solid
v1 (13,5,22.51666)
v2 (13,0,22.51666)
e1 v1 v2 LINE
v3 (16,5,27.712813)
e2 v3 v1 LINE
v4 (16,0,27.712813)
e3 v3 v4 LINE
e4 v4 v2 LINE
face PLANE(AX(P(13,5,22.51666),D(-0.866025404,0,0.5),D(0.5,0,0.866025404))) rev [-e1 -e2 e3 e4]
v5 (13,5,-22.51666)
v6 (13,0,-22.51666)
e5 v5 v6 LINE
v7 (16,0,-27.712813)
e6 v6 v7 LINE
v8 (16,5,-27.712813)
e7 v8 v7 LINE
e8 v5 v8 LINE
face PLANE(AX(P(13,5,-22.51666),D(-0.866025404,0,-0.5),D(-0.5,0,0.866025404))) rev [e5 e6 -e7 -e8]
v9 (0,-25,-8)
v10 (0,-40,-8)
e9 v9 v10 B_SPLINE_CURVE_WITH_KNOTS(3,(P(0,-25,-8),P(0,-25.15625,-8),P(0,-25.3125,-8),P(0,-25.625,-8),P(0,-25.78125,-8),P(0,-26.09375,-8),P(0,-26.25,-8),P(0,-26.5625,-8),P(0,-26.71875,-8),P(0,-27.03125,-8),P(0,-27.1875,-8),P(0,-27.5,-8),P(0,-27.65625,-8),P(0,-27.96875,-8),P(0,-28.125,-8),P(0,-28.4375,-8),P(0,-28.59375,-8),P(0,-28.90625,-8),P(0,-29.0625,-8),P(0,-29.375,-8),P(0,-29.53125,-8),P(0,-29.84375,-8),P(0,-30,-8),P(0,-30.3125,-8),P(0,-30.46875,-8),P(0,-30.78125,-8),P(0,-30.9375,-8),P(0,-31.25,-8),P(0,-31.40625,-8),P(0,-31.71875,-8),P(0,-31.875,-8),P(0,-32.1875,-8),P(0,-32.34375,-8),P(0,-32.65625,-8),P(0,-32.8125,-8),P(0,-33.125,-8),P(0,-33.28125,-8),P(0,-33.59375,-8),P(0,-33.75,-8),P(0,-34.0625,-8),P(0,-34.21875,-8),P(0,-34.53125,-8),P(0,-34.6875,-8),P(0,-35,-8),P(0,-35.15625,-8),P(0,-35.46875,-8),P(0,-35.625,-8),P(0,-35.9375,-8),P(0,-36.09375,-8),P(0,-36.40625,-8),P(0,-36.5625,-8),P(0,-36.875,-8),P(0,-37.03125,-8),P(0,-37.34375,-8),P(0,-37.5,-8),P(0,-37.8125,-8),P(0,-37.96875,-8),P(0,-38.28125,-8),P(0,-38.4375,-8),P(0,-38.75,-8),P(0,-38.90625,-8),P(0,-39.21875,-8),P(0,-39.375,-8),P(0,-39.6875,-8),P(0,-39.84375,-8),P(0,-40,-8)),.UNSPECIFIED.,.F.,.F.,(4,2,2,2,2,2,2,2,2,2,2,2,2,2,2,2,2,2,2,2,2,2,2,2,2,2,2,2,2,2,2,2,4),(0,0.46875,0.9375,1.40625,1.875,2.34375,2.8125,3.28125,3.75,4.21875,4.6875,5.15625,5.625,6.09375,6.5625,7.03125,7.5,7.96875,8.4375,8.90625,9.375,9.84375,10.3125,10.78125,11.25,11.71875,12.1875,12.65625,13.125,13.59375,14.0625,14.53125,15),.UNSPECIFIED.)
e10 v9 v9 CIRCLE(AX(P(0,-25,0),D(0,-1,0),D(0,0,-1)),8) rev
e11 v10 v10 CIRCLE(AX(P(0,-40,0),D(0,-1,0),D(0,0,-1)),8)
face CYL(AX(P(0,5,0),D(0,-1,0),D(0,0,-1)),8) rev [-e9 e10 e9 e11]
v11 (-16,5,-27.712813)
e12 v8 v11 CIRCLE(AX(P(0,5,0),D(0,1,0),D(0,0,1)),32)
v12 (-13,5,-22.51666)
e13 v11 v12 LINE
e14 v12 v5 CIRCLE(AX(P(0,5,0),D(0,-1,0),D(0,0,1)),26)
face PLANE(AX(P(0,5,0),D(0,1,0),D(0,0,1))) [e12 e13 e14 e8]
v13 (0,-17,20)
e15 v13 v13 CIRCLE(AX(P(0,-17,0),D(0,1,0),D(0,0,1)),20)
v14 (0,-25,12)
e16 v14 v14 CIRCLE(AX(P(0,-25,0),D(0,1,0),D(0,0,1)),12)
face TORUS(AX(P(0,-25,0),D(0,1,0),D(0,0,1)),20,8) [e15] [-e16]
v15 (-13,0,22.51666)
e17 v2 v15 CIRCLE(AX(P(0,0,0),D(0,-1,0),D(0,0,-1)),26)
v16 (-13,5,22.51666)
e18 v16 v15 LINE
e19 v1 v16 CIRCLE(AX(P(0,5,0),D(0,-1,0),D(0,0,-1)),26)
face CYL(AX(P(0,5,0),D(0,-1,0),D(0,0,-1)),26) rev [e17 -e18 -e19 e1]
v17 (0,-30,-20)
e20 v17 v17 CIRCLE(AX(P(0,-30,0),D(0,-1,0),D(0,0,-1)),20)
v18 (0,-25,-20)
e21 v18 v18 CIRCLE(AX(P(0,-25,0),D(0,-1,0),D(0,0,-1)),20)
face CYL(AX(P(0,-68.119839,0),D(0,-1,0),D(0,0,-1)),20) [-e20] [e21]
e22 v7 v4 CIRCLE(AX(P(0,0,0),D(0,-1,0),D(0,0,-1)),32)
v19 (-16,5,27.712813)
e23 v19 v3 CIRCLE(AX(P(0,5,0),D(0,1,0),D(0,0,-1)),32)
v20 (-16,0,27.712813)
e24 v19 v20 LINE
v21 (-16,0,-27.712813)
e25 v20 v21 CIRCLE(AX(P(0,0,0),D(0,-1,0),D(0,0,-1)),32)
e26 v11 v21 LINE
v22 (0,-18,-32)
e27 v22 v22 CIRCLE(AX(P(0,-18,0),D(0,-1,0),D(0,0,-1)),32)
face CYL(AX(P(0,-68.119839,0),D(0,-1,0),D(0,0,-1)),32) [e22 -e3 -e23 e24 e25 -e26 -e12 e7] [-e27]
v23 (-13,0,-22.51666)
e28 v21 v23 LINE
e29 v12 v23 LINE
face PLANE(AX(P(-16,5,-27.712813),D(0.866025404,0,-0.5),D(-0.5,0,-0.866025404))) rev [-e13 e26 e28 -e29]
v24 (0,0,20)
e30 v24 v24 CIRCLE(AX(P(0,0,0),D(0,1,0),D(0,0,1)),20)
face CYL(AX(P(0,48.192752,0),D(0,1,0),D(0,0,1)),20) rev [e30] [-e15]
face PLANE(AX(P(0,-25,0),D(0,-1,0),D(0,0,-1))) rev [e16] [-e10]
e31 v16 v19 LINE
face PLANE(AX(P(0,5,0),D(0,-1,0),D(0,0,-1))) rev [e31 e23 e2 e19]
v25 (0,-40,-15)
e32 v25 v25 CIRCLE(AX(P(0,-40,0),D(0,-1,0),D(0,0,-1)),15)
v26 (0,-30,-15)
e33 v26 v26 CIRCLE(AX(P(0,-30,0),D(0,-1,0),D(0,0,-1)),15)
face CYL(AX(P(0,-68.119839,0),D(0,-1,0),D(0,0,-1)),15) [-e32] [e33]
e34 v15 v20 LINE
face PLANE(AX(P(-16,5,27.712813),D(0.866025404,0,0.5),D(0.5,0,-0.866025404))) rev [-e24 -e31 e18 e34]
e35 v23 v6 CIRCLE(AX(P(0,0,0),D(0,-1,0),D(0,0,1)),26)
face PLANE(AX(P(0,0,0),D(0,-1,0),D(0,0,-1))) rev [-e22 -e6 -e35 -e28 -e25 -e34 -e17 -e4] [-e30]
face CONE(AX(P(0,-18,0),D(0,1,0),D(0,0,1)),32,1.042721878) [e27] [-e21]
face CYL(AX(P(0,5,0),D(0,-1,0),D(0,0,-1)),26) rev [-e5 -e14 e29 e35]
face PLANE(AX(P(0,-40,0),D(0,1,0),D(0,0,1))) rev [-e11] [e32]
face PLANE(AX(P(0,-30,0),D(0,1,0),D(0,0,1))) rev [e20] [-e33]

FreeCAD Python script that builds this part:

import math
import FreeCAD as App
import Part
import Sketcher

V = App.Vector
Q = App.Units.Quantity

doc = App.newDocument("Part")
params = doc.addObject("Spreadsheet::Sheet", "Params")
for row, (alias, value) in enumerate([
    ("sketch1_width", "40 mm"),
    ("sketch1_width2", "18 mm"),
    ("sketch1_width3", "5 mm"),
    ("sketch1_width4", "10 mm"),
    ("sketch1_height", "15 mm"),
    ("revolution_angle", "360 deg"),
    ("sketch2_radius", "32 mm"),
    ("sketch2_radius2", "26 mm"),
    ("pad1_length", "5 mm"),
    ("sketch3_diameter", "16 mm"),
    ("sketch4_radius", "8 mm"),
    ("sketch4_width", "17 mm"),
    ("sketch4_width2", "8 mm"),
    ("sketch4_height", "20 mm"),
    ("groove_angle", "360 deg"),
], start=1):
    params.set(f"A{row}", alias)
    params.set(f"B{row}", "=" + value)
    params.setAlias(f"B{row}", alias)

body = doc.addObject("PartDesign::Body", "Body")

sketch1 = body.newObject("Sketcher::SketchObject", "Sketch")
sketch1.AttachmentSupport = (doc.getObject("YZ_Plane"), [""])
sketch1.MapMode = "FlatFace"
sketch1.addGeometry(Part.LineSegment(V(-40, 15, 0), V(-40, 0, 0)), False)
sketch1.addGeometry(Part.LineSegment(V(-40, 0, 0), V(0, 0, 0)), False)
sketch1.addGeometry(Part.LineSegment(V(0, 0, 0), V(0, 32, 0)), False)
sketch1.addGeometry(Part.LineSegment(V(0, 32, 0), V(-18, 32, 0)), False)
sketch1.addGeometry(Part.LineSegment(V(-18, 32, 0), V(-25, 20, 0)), False)
sketch1.addGeometry(Part.LineSegment(V(-25, 20, 0), V(-30, 20, 0)), False)
sketch1.addGeometry(Part.LineSegment(V(-30, 20, 0), V(-30, 15, 0)), False)
sketch1.addGeometry(Part.LineSegment(V(-30, 15, 0), V(-40, 15, 0)), False)
sketch1.addConstraint(Sketcher.Constraint("Coincident", 0, 2, 1, 1))
sketch1.addConstraint(Sketcher.Constraint("Coincident", 1, 2, 2, 1))
sketch1.addConstraint(Sketcher.Constraint("Coincident", 2, 2, 3, 1))
sketch1.addConstraint(Sketcher.Constraint("Coincident", 3, 2, 4, 1))
sketch1.addConstraint(Sketcher.Constraint("Coincident", 4, 2, 5, 1))
sketch1.addConstraint(Sketcher.Constraint("Coincident", 5, 2, 6, 1))
sketch1.addConstraint(Sketcher.Constraint("Coincident", 6, 2, 7, 1))
sketch1.addConstraint(Sketcher.Constraint("Coincident", 7, 2, 0, 1))
sketch1.addConstraint(Sketcher.Constraint("Vertical", 0))
sketch1.addConstraint(Sketcher.Constraint("Horizontal", 1))
sketch1.addConstraint(Sketcher.Constraint("Vertical", 2))
sketch1.addConstraint(Sketcher.Constraint("Horizontal", 3))
sketch1.addConstraint(Sketcher.Constraint("Horizontal", 5))
sketch1.addConstraint(Sketcher.Constraint("Vertical", 6))
sketch1.addConstraint(Sketcher.Constraint("Horizontal", 7))
sketch1.addConstraint(Sketcher.Constraint("Coincident", 1, 2, -1, 1))
sketch1.addConstraint(Sketcher.Constraint("Equal", 5, 6))
sketch1.addConstraint(Sketcher.Constraint("DistanceX", 1, 1, 1, 2, 40.0))
sketch1.addConstraint(Sketcher.Constraint("DistanceX", 3, 2, 3, 1, 18.0))
sketch1.addConstraint(Sketcher.Constraint("DistanceX", 5, 2, 5, 1, 5.0))
sketch1.addConstraint(Sketcher.Constraint("DistanceX", 7, 2, 7, 1, 10.0))
sketch1.addConstraint(Sketcher.Constraint("DistanceY", 0, 2, 0, 1, 15.0))
sketch1.addConstraint(Sketcher.Constraint("DistanceY", 2, 1, 2, 2, 32.0))
sketch1.setExpression("Constraints[17]", "Params.sketch1_width")
sketch1.setExpression("Constraints[18]", "Params.sketch1_width2")
sketch1.setExpression("Constraints[19]", "Params.sketch1_width3")
sketch1.setExpression("Constraints[20]", "Params.sketch1_width4")
sketch1.setExpression("Constraints[21]", "Params.sketch1_height")
revolution = body.newObject("PartDesign::Revolution", "Revolution")
revolution.Profile = sketch1
revolution.ReferenceAxis = (sketch1, ["H_Axis"])
revolution.setExpression("Angle", "Params.revolution_angle")

sketch2 = body.newObject("Sketcher::SketchObject", "Sketch001")
sketch2.AttachmentSupport = (doc.getObject("XZ_Plane"), [""])
sketch2.MapMode = "FlatFace"
sketch2.addGeometry(Part.LineSegment(V(13, -23, 0), V(16, -28, 0)), False)
sketch2.addGeometry(Part.ArcOfCircle(Part.Circle(V(0, 0, 0), V(0, 0, 1), 32), math.radians(-120), math.radians(-60)), False)
sketch2.addGeometry(Part.LineSegment(V(-16, -28, 0), V(-13, -23, 0)), False)
sketch2.addGeometry(Part.ArcOfCircle(Part.Circle(V(0, 0, 0), V(0, 0, 1), 26), math.radians(-120), math.radians(-60)), False)
sketch2.addGeometry(Part.LineSegment(V(16, 28, 0), V(13, 23, 0)), False)
sketch2.addGeometry(Part.ArcOfCircle(Part.Circle(V(0, 0, 0), V(0, 0, 1), 26), math.radians(60), math.radians(120)), False)
sketch2.addGeometry(Part.LineSegment(V(-13, 23, 0), V(-16, 28, 0)), False)
sketch2.addGeometry(Part.ArcOfCircle(Part.Circle(V(0, 0, 0), V(0, 0, 1), 32), math.radians(60), math.radians(120)), False)
sketch2.addConstraint(Sketcher.Constraint("Coincident", 0, 2, 1, 2))
sketch2.addConstraint(Sketcher.Constraint("Coincident", 1, 1, 2, 1))
sketch2.addConstraint(Sketcher.Constraint("Coincident", 2, 2, 3, 1))
sketch2.addConstraint(Sketcher.Constraint("Coincident", 3, 2, 0, 1))
sketch2.addConstraint(Sketcher.Constraint("Coincident", 4, 2, 5, 1))
sketch2.addConstraint(Sketcher.Constraint("Coincident", 5, 2, 6, 1))
sketch2.addConstraint(Sketcher.Constraint("Coincident", 6, 2, 7, 2))
sketch2.addConstraint(Sketcher.Constraint("Coincident", 7, 1, 4, 1))
sketch2.addConstraint(Sketcher.Constraint("Coincident", 1, 3, -1, 1))
sketch2.addConstraint(Sketcher.Constraint("Coincident", 3, 3, -1, 1))
sketch2.addConstraint(Sketcher.Constraint("Coincident", 5, 3, -1, 1))
sketch2.addConstraint(Sketcher.Constraint("Coincident", 7, 3, -1, 1))
sketch2.addConstraint(Sketcher.Constraint("Equal", 3, 5))
sketch2.addConstraint(Sketcher.Constraint("Equal", 1, 7))
sketch2.addConstraint(Sketcher.Constraint("Parallel", 2, 4))
sketch2.addConstraint(Sketcher.Constraint("Parallel", 0, 6))
sketch2.addConstraint(Sketcher.Constraint("Horizontal", 0, 2, 1, 1))
sketch2.addConstraint(Sketcher.Constraint("Horizontal", 2, 2, 3, 2))
sketch2.addConstraint(Sketcher.Constraint("Horizontal", 4, 2, 5, 2))
sketch2.addConstraint(Sketcher.Constraint("Vertical", 3, 2, 4, 2))
sketch2.addConstraint(Sketcher.Constraint("Radius", 1, 32.0))
sketch2.addConstraint(Sketcher.Constraint("Radius", 3, 26.0))
sketch2.addConstraint(Sketcher.Constraint("Angle", 0, Q("-60 deg")))
sketch2.addConstraint(Sketcher.Constraint("DistanceX", -1, 1, 0, 2, 16.0))
sketch2.setExpression("Constraints[20]", "Params.sketch2_radius")
sketch2.setExpression("Constraints[21]", "Params.sketch2_radius2")
pad1 = body.newObject("PartDesign::Pad", "Pad")
pad1.Profile = sketch2
pad1.setExpression("Length", "Params.pad1_length")
pad1.Reversed = True

sketch3 = body.newObject("Sketcher::SketchObject", "Sketch002")
sketch3.AttachmentSupport = (doc.getObject("XZ_Plane"), [""])
sketch3.MapMode = "FlatFace"
sketch3.AttachmentOffset = App.Placement(V(0, 0, 40), App.Rotation())
sketch3.addGeometry(Part.Circle(V(0, 0, 0), V(0, 0, 1), 8), False)
sketch3.addConstraint(Sketcher.Constraint("Coincident", 0, 3, -1, 1))
sketch3.addConstraint(Sketcher.Constraint("Diameter", 0, 16.0))
sketch3.setExpression("Constraints[1]", "Params.sketch3_diameter")
pocket1 = body.newObject("PartDesign::Pocket", "Pocket")
pocket1.Profile = sketch3
pocket1.Type = "ThroughAll"

sketch4 = body.newObject("Sketcher::SketchObject", "Sketch003")
sketch4.AttachmentSupport = (doc.getObject("YZ_Plane"), [""])
sketch4.MapMode = "FlatFace"
sketch4.addGeometry(Part.LineSegment(V(-17, 20, 0), V(-17, 0, 0)), False)
sketch4.addGeometry(Part.LineSegment(V(-17, 0, 0), V(0, 0, 0)), False)
sketch4.addGeometry(Part.LineSegment(V(0, 0, 0), V(0, 20, 0)), False)
sketch4.addGeometry(Part.LineSegment(V(0, 20, 0), V(-17, 20, 0)), False)
sketch4.addGeometry(Part.LineSegment(V(-17, 0, 0), V(-17, 20, 0)), False)
sketch4.addGeometry(Part.ArcOfCircle(Part.Circle(V(-25, 20, 0), V(0, 0, 1), 8), math.radians(-90), math.radians(0)), False)
sketch4.addGeometry(Part.LineSegment(V(-25, 12, 0), V(-25, 0, 0)), False)
sketch4.addGeometry(Part.LineSegment(V(-25, 0, 0), V(-17, 0, 0)), False)
sketch4.addConstraint(Sketcher.Constraint("Coincident", 0, 2, 1, 1))
sketch4.addConstraint(Sketcher.Constraint("Coincident", 1, 2, 2, 1))
sketch4.addConstraint(Sketcher.Constraint("Coincident", 2, 2, 3, 1))
sketch4.addConstraint(Sketcher.Constraint("Coincident", 3, 2, 0, 1))
sketch4.addConstraint(Sketcher.Constraint("Tangent", 4, 2, 5, 2))
sketch4.addConstraint(Sketcher.Constraint("Coincident", 5, 1, 6, 1))
sketch4.addConstraint(Sketcher.Constraint("Coincident", 6, 2, 7, 1))
sketch4.addConstraint(Sketcher.Constraint("Coincident", 7, 2, 4, 1))
sketch4.addConstraint(Sketcher.Constraint("Vertical", 0))
sketch4.addConstraint(Sketcher.Constraint("Horizontal", 1))
sketch4.addConstraint(Sketcher.Constraint("Vertical", 2))
sketch4.addConstraint(Sketcher.Constraint("Horizontal", 3))
sketch4.addConstraint(Sketcher.Constraint("Vertical", 4))
sketch4.addConstraint(Sketcher.Constraint("Vertical", 6))
sketch4.addConstraint(Sketcher.Constraint("Horizontal", 7))
sketch4.addConstraint(Sketcher.Constraint("Coincident", 1, 2, -1, 1))
sketch4.addConstraint(Sketcher.Constraint("Coincident", 4, 2, 3, 2))
sketch4.addConstraint(Sketcher.Constraint("PointOnObject", 6, 2, -1))
sketch4.addConstraint(Sketcher.Constraint("Radius", 5, 8.0))
sketch4.addConstraint(Sketcher.Constraint("DistanceX", 1, 1, 1, 2, 17.0))
sketch4.addConstraint(Sketcher.Constraint("DistanceX", 7, 1, 7, 2, 8.0))
sketch4.addConstraint(Sketcher.Constraint("DistanceY", 0, 2, 0, 1, 20.0))
sketch4.setExpression("Constraints[18]", "Params.sketch4_radius")
sketch4.setExpression("Constraints[19]", "Params.sketch4_width")
sketch4.setExpression("Constraints[20]", "Params.sketch4_width2")
sketch4.setExpression("Constraints[21]", "Params.sketch4_height")
groove = body.newObject("PartDesign::Groove", "Groove")
groove.Profile = sketch4
groove.ReferenceAxis = (sketch4, ["H_Axis"])
groove.setExpression("Angle", "Params.groove_angle")

doc.recompute()
